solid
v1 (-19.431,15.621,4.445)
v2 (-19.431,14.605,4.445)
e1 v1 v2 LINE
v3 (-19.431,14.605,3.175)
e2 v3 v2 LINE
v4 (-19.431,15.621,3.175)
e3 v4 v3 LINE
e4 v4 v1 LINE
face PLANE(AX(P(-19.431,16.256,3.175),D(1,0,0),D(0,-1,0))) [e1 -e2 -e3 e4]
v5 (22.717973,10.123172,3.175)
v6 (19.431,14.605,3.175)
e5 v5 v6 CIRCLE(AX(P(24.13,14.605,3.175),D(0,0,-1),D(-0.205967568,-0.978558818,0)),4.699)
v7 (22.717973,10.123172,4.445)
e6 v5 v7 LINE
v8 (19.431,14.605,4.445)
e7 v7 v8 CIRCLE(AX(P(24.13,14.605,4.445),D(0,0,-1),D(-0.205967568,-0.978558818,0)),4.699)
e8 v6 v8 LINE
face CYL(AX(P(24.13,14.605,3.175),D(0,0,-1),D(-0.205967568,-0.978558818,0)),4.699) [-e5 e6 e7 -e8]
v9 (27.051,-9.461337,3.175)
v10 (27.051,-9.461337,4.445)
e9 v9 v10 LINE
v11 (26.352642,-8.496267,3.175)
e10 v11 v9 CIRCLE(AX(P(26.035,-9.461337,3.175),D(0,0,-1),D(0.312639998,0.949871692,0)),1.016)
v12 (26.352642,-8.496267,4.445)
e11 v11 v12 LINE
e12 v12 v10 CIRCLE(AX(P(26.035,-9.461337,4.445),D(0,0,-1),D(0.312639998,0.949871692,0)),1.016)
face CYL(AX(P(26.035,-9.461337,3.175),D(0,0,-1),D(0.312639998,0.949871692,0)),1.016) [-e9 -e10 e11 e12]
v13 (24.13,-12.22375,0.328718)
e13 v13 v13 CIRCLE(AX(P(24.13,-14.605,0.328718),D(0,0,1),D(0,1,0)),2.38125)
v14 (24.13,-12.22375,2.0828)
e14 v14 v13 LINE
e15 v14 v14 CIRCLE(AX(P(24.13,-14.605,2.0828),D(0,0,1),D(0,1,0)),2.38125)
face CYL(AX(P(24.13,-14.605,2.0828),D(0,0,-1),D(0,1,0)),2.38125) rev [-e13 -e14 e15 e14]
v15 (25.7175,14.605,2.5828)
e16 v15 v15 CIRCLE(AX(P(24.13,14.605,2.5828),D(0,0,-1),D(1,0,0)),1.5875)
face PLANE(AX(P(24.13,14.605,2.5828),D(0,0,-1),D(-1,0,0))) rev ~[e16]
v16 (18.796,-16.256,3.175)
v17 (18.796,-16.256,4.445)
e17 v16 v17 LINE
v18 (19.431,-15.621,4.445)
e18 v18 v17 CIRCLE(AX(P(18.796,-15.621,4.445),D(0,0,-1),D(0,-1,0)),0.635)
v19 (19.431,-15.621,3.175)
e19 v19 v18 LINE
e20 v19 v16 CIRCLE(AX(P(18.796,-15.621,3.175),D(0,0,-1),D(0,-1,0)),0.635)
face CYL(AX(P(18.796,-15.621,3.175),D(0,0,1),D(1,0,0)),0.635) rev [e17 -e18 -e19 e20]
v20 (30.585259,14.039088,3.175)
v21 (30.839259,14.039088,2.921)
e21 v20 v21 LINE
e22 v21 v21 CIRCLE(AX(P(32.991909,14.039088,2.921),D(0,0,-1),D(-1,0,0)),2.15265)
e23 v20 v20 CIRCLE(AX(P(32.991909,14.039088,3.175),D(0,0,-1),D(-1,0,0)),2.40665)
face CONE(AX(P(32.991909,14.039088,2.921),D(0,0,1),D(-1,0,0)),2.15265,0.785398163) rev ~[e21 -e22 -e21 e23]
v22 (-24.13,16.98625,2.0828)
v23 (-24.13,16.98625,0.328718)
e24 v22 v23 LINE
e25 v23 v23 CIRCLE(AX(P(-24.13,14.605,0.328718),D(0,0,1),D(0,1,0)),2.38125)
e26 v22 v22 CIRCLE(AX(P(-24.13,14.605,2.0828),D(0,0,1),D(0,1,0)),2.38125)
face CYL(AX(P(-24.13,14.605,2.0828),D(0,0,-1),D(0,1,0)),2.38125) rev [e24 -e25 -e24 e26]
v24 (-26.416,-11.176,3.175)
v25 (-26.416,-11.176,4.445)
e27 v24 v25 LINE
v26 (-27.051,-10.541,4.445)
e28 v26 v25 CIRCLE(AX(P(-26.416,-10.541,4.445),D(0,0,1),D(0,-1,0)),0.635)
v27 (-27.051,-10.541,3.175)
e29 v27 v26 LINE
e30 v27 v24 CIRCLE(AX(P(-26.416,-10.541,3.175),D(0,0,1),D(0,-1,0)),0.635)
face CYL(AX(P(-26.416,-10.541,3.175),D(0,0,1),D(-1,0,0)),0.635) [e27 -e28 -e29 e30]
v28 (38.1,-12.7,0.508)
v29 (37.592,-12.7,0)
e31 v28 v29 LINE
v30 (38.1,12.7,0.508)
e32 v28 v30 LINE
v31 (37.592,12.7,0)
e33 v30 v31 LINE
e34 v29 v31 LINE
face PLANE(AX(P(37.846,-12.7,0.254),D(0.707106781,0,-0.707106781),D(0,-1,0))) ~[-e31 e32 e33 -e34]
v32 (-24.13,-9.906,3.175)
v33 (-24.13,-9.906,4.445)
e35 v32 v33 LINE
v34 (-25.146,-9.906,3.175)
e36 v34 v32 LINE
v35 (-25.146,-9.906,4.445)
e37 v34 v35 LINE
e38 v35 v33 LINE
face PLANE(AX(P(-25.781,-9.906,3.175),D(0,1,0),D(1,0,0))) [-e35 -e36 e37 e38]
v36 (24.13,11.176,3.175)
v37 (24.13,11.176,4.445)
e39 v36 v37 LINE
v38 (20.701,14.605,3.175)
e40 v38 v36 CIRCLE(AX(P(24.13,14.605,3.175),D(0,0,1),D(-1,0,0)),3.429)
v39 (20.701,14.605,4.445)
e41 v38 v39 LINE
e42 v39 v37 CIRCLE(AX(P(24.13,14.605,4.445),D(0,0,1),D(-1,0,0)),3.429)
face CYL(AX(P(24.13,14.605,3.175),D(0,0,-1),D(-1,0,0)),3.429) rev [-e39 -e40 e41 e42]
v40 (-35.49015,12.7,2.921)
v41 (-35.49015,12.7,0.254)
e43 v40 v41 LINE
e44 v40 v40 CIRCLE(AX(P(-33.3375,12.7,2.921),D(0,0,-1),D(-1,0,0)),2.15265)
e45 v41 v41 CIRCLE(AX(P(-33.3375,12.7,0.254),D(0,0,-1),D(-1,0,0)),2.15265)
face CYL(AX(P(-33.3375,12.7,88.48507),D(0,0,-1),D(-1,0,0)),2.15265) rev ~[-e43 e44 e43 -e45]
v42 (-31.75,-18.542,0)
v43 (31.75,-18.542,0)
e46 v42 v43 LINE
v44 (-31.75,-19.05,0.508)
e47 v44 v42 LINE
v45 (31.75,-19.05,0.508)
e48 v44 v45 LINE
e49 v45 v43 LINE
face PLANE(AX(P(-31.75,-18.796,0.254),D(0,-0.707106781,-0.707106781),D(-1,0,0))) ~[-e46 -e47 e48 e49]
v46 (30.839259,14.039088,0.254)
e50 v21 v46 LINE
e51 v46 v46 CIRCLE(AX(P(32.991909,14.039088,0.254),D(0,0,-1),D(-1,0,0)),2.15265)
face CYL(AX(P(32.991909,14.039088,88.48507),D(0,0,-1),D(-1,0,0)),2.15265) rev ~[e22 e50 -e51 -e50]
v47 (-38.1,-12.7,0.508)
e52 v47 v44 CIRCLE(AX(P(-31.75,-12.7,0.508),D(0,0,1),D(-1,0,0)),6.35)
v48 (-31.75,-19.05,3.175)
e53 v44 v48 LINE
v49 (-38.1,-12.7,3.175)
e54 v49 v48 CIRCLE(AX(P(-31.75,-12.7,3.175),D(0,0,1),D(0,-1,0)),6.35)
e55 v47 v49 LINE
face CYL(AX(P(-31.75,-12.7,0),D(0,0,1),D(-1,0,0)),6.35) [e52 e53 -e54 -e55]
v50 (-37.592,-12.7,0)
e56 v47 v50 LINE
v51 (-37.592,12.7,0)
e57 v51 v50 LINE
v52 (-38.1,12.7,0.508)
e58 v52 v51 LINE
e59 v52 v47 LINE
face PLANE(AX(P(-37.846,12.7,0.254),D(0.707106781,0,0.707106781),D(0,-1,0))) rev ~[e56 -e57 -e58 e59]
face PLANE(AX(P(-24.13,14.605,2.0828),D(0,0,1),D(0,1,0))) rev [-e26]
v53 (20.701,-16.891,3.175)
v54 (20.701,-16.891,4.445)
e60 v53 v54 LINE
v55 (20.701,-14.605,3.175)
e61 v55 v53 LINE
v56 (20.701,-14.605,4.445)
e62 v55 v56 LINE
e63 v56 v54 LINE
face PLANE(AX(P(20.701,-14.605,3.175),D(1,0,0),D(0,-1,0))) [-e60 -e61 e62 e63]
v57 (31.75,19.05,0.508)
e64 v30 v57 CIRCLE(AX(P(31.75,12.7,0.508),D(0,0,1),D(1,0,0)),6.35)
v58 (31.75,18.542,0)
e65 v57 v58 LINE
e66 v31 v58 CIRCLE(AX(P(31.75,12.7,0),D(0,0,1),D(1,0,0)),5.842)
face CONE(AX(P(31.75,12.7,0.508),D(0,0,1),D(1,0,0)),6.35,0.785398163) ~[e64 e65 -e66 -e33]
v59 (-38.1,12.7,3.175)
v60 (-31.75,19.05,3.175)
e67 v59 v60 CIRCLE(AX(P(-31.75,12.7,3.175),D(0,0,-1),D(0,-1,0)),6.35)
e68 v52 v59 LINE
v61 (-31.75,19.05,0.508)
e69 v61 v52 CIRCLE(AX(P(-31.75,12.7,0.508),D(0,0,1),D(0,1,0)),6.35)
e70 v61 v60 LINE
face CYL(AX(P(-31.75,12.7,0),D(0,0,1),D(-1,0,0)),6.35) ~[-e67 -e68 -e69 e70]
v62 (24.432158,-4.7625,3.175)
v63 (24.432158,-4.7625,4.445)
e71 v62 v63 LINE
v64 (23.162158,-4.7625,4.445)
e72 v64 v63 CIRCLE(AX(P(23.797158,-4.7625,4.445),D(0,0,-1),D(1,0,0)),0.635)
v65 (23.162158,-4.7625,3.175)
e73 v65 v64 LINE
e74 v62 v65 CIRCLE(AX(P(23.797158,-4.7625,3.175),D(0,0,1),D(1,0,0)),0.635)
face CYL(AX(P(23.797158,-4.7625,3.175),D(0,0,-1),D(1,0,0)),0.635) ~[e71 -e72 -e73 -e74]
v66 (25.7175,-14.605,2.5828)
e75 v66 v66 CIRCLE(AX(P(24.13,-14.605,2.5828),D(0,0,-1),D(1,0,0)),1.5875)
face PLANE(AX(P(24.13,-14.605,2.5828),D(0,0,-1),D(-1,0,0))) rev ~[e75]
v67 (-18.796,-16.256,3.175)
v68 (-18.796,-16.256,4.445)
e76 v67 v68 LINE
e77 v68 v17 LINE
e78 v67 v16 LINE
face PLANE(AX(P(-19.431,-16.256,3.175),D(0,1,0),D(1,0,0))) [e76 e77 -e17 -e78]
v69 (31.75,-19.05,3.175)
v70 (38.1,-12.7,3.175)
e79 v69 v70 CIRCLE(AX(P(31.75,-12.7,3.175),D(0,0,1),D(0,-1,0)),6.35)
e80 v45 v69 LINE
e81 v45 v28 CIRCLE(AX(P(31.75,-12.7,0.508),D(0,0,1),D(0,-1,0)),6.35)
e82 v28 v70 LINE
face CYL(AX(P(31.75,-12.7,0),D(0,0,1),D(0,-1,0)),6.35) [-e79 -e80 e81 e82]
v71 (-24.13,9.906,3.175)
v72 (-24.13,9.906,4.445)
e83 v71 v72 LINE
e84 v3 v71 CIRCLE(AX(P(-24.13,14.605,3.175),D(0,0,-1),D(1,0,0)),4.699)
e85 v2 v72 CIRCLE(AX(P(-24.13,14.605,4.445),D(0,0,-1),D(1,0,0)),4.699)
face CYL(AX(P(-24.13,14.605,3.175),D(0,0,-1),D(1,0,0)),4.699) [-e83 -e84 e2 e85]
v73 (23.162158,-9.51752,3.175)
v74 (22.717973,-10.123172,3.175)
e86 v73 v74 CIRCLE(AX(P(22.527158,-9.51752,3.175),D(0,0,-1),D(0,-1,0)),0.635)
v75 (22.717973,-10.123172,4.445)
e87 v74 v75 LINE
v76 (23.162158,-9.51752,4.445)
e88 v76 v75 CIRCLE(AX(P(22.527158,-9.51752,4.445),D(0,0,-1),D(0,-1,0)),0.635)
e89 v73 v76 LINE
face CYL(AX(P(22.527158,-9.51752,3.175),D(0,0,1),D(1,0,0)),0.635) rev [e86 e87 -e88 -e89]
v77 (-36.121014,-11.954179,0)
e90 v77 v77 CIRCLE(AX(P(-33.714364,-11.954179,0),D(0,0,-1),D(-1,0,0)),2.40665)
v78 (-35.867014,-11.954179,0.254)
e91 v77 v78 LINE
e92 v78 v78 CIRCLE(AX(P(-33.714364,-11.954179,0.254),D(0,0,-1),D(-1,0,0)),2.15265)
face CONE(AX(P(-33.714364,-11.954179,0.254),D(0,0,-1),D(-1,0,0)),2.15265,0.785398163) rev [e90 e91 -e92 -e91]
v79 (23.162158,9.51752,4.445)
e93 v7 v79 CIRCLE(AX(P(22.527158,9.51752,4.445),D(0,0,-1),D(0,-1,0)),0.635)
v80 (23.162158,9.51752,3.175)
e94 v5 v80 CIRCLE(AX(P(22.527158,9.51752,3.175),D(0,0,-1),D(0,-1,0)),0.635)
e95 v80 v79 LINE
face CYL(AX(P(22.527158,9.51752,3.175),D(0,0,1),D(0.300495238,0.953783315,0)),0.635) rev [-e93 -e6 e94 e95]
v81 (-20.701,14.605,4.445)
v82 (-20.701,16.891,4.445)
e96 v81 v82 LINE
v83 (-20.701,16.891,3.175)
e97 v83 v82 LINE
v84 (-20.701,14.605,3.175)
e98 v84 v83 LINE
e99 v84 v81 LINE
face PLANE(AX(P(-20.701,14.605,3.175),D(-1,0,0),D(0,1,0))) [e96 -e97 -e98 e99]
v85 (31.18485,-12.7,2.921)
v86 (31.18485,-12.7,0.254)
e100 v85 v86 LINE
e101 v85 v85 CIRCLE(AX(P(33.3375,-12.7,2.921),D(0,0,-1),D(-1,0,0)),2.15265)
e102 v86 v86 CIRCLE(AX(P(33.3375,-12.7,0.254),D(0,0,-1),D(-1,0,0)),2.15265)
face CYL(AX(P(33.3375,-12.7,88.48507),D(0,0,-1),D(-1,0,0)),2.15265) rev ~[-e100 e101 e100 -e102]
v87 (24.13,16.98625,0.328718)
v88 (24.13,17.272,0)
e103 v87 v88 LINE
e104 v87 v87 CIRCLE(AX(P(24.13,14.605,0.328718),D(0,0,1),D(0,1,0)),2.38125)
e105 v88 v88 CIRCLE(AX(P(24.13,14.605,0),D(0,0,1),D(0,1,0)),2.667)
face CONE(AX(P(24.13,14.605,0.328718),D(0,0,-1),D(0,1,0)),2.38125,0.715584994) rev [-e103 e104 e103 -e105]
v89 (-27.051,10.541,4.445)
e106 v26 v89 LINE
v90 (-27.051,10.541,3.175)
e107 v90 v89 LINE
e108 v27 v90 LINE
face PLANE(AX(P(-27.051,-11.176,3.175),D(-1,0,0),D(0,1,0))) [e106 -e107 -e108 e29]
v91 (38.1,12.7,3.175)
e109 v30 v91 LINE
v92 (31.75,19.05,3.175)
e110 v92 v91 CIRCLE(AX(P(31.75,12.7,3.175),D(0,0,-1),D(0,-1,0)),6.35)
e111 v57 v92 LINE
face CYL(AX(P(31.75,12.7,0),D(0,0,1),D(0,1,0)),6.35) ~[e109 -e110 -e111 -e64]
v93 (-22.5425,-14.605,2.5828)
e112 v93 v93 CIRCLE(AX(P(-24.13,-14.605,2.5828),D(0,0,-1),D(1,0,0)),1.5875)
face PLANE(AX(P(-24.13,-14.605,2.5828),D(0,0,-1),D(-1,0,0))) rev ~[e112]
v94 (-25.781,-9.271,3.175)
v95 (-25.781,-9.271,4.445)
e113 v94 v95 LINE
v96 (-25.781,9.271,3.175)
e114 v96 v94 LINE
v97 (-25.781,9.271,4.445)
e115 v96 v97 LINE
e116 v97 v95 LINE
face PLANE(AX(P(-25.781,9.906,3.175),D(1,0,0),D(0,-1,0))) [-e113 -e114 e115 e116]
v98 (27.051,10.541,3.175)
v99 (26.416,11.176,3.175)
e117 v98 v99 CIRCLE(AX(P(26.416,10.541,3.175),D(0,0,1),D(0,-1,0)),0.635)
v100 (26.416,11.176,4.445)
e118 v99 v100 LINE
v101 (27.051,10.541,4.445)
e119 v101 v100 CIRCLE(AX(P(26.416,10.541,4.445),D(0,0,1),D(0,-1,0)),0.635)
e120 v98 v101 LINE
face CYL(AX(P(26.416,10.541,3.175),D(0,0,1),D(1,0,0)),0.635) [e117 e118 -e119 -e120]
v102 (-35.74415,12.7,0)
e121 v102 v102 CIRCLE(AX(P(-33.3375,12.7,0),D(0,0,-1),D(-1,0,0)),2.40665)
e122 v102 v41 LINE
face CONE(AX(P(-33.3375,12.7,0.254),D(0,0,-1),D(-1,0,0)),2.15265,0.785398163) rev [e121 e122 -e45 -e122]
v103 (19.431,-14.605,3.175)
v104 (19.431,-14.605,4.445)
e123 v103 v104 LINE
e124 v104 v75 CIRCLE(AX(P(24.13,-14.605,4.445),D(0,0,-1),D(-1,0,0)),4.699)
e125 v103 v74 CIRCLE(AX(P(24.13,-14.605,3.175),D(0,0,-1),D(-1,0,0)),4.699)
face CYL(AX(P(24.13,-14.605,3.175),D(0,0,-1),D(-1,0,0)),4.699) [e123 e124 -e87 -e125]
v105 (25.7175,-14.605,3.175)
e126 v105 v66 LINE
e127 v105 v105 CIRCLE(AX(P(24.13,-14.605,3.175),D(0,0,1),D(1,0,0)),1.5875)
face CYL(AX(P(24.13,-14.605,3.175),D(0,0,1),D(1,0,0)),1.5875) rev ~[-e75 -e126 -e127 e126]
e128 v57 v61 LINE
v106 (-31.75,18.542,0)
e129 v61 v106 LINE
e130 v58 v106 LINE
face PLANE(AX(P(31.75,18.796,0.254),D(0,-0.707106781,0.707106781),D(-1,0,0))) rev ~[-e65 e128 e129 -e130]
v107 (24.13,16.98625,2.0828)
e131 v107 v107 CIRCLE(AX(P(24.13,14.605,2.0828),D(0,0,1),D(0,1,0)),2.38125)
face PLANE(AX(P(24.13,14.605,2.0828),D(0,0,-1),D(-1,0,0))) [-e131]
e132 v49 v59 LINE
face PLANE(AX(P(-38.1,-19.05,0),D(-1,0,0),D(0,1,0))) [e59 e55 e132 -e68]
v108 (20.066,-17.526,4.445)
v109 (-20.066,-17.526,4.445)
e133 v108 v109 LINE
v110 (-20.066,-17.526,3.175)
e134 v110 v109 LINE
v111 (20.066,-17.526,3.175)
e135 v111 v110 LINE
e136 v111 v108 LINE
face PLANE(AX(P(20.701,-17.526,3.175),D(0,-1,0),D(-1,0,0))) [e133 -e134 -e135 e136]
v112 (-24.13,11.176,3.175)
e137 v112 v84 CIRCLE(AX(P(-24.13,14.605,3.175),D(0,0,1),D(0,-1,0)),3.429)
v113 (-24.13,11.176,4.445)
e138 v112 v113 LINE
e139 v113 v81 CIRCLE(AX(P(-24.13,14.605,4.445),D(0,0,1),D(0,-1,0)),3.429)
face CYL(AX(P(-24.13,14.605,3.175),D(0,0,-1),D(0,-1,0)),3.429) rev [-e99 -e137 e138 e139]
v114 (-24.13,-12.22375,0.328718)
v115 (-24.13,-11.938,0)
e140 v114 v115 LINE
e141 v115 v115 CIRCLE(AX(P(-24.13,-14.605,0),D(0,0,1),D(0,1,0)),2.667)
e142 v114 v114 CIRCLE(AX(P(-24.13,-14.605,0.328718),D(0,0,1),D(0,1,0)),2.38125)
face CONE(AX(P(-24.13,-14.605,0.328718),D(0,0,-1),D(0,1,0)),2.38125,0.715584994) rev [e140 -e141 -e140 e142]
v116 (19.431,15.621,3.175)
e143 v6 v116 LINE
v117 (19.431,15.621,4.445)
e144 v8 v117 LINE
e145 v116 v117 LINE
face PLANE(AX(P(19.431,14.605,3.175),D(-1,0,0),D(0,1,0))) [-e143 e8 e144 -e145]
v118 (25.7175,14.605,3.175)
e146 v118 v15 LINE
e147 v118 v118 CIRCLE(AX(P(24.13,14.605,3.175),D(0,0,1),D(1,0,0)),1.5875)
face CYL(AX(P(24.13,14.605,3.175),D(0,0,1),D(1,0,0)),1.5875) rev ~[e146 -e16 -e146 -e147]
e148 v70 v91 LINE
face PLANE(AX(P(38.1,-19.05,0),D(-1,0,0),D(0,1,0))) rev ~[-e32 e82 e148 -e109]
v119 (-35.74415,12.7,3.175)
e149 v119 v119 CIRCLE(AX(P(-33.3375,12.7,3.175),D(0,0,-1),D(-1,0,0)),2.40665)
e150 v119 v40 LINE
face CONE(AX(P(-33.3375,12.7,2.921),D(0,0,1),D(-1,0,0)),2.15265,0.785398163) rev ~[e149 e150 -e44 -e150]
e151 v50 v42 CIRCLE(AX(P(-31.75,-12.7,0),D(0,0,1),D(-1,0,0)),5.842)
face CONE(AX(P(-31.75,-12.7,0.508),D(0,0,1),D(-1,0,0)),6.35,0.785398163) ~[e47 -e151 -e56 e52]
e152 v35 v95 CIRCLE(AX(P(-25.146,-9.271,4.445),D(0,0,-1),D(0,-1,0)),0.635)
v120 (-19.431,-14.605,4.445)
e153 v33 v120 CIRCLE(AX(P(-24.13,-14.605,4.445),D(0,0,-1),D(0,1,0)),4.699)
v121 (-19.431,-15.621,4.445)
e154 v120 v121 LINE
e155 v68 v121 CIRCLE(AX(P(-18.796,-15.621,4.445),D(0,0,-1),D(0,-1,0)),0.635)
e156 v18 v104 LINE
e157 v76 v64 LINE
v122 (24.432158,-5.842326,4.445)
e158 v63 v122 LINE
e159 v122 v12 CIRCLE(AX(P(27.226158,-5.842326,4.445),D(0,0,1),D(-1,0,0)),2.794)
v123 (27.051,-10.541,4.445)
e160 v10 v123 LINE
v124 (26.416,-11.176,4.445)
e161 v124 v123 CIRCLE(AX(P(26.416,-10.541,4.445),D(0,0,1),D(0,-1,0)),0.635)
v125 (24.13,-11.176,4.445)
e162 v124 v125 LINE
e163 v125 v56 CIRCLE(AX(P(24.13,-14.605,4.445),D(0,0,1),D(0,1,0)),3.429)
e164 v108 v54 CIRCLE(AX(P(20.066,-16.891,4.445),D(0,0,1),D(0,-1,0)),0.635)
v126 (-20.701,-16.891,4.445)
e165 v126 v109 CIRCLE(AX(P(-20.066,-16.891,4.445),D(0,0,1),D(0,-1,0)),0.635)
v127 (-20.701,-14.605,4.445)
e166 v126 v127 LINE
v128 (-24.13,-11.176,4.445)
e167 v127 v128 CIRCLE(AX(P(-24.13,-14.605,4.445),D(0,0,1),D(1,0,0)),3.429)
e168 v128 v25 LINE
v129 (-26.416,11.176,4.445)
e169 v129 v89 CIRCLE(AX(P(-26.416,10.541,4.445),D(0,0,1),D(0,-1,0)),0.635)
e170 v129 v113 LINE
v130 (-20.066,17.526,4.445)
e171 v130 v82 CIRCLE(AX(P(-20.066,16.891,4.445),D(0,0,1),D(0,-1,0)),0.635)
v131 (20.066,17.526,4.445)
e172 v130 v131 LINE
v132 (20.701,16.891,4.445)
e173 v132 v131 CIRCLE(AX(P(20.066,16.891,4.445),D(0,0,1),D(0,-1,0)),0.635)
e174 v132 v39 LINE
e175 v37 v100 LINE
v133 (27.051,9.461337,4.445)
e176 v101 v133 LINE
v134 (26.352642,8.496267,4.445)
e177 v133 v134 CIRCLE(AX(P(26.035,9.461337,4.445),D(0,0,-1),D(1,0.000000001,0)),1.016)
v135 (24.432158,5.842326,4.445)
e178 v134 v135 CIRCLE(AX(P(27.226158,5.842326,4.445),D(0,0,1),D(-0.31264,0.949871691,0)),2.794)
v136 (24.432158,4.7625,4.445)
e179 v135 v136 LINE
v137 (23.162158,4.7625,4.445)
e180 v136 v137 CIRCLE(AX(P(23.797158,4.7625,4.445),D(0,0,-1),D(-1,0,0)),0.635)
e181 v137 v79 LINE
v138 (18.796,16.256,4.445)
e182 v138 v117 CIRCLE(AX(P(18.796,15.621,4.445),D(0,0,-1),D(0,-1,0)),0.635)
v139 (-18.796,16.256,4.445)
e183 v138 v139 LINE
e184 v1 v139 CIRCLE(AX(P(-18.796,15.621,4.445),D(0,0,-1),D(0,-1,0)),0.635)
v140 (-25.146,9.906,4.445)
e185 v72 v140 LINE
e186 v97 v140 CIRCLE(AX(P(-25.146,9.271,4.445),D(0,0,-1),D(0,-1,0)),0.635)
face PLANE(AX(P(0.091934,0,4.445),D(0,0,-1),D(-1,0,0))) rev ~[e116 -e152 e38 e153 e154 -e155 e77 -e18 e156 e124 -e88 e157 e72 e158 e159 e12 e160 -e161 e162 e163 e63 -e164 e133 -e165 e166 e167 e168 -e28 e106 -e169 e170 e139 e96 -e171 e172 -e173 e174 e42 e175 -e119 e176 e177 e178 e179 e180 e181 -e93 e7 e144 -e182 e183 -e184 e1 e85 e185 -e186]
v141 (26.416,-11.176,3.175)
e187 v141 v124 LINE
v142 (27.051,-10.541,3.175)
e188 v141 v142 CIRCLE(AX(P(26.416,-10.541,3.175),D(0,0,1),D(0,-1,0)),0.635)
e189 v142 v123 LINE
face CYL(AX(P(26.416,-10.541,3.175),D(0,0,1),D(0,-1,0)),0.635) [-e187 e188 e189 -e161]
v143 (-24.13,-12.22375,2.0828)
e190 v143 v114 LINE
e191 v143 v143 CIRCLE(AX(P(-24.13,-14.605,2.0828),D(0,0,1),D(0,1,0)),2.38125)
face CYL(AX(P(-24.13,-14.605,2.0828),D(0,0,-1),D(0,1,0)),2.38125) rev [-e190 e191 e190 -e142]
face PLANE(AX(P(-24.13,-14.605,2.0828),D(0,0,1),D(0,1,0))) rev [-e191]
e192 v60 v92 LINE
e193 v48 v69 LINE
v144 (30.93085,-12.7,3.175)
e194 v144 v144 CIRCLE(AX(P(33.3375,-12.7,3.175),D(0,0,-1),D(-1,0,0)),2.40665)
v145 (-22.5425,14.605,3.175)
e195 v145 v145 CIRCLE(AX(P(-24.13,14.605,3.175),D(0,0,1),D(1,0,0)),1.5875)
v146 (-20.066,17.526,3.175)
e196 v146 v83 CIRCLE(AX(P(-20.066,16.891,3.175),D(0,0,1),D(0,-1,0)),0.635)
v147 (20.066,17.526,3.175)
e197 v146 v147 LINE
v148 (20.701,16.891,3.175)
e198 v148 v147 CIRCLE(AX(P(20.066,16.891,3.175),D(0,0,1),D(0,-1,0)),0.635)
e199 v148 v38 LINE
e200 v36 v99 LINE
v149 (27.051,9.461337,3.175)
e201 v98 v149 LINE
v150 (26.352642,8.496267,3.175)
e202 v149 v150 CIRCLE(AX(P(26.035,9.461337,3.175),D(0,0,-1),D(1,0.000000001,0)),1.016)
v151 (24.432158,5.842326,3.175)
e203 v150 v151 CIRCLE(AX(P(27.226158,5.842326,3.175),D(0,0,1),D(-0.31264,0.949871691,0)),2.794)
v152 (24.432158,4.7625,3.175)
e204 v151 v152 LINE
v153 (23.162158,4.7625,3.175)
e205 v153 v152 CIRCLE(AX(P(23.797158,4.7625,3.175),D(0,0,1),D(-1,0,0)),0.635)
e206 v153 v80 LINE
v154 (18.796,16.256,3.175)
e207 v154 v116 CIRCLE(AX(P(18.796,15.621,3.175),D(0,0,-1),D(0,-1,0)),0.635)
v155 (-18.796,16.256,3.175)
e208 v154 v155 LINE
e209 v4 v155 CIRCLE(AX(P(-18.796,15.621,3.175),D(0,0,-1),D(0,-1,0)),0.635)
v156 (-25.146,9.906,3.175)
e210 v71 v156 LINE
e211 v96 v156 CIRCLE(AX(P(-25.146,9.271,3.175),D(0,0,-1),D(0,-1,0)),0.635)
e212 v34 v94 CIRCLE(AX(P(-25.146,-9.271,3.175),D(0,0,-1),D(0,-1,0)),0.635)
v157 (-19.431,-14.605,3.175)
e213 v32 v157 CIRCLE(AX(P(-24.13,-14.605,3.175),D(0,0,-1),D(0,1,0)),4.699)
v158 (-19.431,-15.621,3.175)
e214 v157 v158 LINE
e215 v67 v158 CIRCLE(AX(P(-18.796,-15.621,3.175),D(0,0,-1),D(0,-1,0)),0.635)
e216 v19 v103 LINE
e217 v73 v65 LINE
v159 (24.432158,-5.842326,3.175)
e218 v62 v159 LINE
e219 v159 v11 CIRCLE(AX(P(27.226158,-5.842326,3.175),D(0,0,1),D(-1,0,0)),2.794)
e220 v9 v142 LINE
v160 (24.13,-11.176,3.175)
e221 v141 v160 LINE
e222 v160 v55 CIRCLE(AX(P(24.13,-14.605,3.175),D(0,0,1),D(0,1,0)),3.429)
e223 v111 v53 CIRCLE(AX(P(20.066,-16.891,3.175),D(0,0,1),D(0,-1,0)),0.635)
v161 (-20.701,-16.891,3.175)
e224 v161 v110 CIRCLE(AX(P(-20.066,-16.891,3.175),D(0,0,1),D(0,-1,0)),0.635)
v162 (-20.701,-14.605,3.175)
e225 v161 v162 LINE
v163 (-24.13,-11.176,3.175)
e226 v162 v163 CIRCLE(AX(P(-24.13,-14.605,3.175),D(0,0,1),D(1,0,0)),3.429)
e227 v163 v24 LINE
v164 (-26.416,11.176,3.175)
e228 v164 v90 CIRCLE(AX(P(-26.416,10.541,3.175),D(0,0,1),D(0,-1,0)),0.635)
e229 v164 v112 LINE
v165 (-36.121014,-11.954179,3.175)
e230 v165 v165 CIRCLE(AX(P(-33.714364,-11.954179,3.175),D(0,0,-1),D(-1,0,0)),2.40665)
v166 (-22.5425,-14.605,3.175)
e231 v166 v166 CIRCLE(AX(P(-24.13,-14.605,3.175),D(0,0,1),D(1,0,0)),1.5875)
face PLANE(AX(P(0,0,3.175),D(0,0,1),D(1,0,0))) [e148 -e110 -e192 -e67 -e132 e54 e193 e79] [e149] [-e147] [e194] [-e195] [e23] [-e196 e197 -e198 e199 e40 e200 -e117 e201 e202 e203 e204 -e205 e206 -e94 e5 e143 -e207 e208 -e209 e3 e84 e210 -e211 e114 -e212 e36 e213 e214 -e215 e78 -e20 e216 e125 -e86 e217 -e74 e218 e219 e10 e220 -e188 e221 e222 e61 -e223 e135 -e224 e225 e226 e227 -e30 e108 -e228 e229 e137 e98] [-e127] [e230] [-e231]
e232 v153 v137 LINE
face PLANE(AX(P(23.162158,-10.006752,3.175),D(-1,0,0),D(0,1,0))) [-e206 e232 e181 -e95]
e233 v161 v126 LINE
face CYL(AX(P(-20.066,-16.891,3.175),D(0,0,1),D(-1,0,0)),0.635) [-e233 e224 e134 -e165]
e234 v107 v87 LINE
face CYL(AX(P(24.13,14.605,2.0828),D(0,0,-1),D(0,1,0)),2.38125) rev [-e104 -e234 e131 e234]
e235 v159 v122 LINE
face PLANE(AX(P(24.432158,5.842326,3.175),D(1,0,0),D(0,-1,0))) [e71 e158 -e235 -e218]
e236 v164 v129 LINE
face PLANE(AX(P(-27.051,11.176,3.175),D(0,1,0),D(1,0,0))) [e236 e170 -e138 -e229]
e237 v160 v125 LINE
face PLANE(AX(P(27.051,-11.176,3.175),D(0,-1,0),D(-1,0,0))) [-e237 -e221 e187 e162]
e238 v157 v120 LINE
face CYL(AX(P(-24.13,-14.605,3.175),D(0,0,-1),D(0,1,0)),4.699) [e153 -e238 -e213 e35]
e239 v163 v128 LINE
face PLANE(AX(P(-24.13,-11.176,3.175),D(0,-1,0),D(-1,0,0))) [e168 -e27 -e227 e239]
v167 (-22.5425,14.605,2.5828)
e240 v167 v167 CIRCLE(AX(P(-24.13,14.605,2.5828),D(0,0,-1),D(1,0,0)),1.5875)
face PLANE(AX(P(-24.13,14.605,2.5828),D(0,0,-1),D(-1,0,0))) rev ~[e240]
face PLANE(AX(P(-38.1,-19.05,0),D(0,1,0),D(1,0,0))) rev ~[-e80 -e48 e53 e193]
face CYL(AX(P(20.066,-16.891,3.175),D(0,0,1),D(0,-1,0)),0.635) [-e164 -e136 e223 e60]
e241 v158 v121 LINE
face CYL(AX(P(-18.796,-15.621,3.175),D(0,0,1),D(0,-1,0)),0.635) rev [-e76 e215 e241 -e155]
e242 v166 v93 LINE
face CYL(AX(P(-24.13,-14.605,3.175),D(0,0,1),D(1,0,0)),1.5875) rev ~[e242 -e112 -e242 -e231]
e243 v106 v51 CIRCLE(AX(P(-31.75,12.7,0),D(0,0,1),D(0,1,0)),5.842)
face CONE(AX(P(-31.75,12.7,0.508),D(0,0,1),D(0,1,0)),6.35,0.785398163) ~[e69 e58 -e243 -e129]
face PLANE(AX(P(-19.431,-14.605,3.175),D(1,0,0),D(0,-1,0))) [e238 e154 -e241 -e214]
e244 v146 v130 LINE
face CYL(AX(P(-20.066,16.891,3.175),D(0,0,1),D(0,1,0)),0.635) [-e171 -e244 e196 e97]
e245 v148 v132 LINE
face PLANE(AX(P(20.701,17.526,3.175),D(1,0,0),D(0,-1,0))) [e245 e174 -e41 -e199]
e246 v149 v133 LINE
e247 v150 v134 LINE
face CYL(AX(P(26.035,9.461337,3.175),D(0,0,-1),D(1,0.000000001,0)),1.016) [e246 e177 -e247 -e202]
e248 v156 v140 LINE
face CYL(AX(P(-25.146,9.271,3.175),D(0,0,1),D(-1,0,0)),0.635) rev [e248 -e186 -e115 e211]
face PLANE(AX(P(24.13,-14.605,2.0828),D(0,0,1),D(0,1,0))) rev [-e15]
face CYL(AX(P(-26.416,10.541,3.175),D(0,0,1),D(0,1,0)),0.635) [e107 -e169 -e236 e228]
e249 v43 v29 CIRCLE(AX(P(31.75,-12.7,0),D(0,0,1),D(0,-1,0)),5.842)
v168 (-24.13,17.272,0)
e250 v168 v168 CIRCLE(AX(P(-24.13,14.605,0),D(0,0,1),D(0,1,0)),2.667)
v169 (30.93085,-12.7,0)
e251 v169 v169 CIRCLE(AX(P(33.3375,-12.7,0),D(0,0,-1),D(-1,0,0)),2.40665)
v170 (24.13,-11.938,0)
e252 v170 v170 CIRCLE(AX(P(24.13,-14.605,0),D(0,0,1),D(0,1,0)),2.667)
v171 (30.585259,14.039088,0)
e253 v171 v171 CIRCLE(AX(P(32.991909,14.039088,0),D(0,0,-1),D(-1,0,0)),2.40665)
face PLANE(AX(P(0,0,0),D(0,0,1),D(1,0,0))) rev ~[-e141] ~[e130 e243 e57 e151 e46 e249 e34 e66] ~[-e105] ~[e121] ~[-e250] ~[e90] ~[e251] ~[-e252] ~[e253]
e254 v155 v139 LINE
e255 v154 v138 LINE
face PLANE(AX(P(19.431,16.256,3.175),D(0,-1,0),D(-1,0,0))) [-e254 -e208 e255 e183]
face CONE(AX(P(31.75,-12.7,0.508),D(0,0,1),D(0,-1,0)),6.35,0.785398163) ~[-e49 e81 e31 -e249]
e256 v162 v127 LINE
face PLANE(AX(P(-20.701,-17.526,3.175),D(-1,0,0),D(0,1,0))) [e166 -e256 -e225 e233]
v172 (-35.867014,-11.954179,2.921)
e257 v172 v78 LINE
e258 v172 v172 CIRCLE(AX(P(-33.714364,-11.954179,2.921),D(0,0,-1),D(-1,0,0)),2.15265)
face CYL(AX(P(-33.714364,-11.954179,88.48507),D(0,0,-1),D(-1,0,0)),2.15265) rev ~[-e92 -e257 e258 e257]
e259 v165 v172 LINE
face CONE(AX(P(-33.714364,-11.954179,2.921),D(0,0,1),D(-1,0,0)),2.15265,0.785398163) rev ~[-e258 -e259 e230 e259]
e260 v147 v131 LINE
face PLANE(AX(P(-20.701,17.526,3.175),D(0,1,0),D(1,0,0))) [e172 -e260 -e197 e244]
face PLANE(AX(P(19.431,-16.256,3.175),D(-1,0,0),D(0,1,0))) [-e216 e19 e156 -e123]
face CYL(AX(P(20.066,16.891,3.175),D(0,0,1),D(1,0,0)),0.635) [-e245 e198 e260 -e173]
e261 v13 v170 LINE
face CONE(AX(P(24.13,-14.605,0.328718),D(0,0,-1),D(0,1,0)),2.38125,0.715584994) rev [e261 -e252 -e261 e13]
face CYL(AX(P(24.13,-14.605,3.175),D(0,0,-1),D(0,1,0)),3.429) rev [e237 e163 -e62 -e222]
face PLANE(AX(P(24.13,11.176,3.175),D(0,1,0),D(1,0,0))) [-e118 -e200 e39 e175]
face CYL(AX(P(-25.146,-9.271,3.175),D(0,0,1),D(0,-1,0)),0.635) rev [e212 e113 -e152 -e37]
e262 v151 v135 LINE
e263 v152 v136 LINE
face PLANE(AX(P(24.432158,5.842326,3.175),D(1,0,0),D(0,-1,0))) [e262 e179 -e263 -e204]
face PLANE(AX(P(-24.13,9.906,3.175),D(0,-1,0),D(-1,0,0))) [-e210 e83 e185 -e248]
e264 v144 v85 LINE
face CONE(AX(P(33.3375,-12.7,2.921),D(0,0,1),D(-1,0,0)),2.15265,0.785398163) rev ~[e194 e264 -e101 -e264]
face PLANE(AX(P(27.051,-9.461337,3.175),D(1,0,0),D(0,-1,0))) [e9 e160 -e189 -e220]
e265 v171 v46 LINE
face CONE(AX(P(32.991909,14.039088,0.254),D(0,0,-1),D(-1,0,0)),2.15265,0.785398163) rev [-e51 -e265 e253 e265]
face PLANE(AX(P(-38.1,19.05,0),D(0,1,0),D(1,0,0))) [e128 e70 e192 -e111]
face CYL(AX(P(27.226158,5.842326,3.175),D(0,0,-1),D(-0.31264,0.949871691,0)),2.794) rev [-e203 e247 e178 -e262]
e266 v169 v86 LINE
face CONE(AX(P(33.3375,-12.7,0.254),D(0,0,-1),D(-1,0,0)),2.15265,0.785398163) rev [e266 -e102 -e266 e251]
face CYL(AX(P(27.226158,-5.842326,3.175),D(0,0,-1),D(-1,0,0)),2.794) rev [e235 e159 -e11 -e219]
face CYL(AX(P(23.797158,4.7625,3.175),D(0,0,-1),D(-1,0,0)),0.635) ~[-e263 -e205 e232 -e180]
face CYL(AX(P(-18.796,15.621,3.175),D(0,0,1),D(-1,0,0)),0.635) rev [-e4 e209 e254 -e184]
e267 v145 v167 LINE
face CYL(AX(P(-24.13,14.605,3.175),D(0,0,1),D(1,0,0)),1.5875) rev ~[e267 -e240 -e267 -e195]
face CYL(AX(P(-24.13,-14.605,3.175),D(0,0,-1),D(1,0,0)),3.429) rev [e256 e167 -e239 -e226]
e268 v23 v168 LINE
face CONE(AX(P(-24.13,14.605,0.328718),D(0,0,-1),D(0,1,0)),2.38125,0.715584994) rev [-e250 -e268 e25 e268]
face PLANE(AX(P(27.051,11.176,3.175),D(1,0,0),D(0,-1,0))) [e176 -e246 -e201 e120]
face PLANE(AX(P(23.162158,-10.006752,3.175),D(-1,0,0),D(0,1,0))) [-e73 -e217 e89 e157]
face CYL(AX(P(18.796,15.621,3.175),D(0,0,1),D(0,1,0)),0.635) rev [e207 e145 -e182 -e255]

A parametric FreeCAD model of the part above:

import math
import FreeCAD as App
import Part
import Sketcher

V = App.Vector
Q = App.Units.Quantity


def edges_at(feature, points):
    """Names of the edges that pass closest to the given points."""
    edges = feature.Shape.Edges
    near = lambda p: min(range(len(edges)), key=lambda i: edges[i].distToShape(Part.Vertex(*p))[0])
    return sorted({f"Edge{near(p) + 1}" for p in points})

doc = App.newDocument("Part")
body = doc.addObject("PartDesign::Body", "Body")

# Sketch on XY plane
sketch1 = body.newObject("Sketcher::SketchObject", "Sketch")
sketch1.AttachmentSupport = (doc.getObject("XY_Plane"), [""])
sketch1.MapMode = "FlatFace"
sketch1.addGeometry([
    Part.LineSegment(V(-38, 19, 0), V(-38, -19, 0)),
    Part.LineSegment(V(-38, -19, 0), V(38, -19, 0)),
    Part.LineSegment(V(38, -19, 0), V(38, 19, 0)),
    Part.LineSegment(V(38, 19, 0), V(-38, 19, 0)),
], False)
sketch1.addConstraint([
    Sketcher.Constraint("Coincident", 0, 2, 1, 1),
    Sketcher.Constraint("Coincident", 1, 2, 2, 1),
    Sketcher.Constraint("Coincident", 2, 2, 3, 1),
    Sketcher.Constraint("Coincident", 3, 2, 0, 1),
    Sketcher.Constraint("Vertical", 0),
    Sketcher.Constraint("Horizontal", 1),
    Sketcher.Constraint("Vertical", 2),
    Sketcher.Constraint("Horizontal", 3),
    Sketcher.Constraint("Symmetric", 0, 2, 2, 2, -1, 1),
    Sketcher.Constraint("DistanceX", 1, 1, 1, 2, Q("3 in")),
    Sketcher.Constraint("DistanceY", 0, 2, 0, 1, Q("1.5 in")),
])
pad1 = body.newObject("PartDesign::Pad", "Pad")
pad1.Profile = sketch1
pad1.Length = Q("0.125 in")

# Sketch on XY plane
sketch2 = body.newObject("Sketcher::SketchObject", "Sketch001")
sketch2.AttachmentSupport = (doc.getObject("XY_Plane"), [""])
sketch2.MapMode = "FlatFace"
sketch2.AttachmentOffset = App.Placement(V(0, 0, 0.125 * 25.4), App.Rotation())
sketch2.addGeometry([
    Part.Circle(V(24.1, -14.6, 0), V(0, 0, 1), 1.6),
    Part.Circle(V(24.1, 14.6, 0), V(0, 0, 1), 1.6),
    Part.Circle(V(-24.1, 14.6, 0), V(0, 0, 1), 1.6),
    Part.Circle(V(-24.1, -14.6, 0), V(0, 0, 1), 1.6),
], False)
sketch2.addConstraint([
    Sketcher.Constraint("Equal", 0, 1),
    Sketcher.Constraint("Equal", 1, 2),
    Sketcher.Constraint("Equal", 2, 3),
    Sketcher.Constraint("Symmetric", 0, 3, 2, 3, -1, 1),
    Sketcher.Constraint("Symmetric", 1, 3, 3, 3, -1, 1),
    Sketcher.Constraint("Symmetric", 1, 3, 2, 3, -2),
    Sketcher.Constraint("Diameter", 0, Q("0.125 in")),
    Sketcher.Constraint("DistanceX", 2, 3, 1, 3, Q("1.9 in")),
    Sketcher.Constraint("DistanceY", 0, 3, 1, 3, Q("1.15 in")),
])
pocket1 = body.newObject("PartDesign::Pocket", "Pocket")
pocket1.Profile = sketch2
pocket1.Type = "ThroughAll"

# Sketch on YZ plane
sketch3 = body.newObject("Sketcher::SketchObject", "Sketch002")
sketch3.AttachmentSupport = (doc.getObject("YZ_Plane"), [""])
sketch3.MapMode = "FlatFace"
sketch3.AttachmentOffset = App.Placement(V(0, 0, 0.95 * 25.4), App.Rotation())
sketch3.addGeometry([
    Part.LineSegment(V(14.61, 3.17, 0), V(14.61, 0, 0)),  # 0
    Part.LineSegment(V(14.61, 0, 0), V(17.27, 0, 0)),  # 1
    Part.LineSegment(V(17.27, 0, 0), V(16.99, 0.33, 0)),  # 2
    Part.LineSegment(V(16.99, 0.33, 0), V(16.99, 2.08, 0)),  # 3
    Part.LineSegment(V(16.99, 2.08, 0), V(15.96, 2.08, 0)),  # 4
    Part.LineSegment(V(15.96, 2.08, 0), V(15.96, 3.17, 0)),  # 5
    Part.LineSegment(V(15.96, 3.17, 0), V(14.61, 3.17, 0)),  # 6
], False)
sketch3.addGeometry(Part.LineSegment(V(14.61, 0, 0), V(14.61, 3.17, 0)), True)  # axis
sketch3.addConstraint([
    Sketcher.Constraint("Coincident", 0, 2, 1, 1),
    Sketcher.Constraint("Coincident", 1, 2, 2, 1),
    Sketcher.Constraint("Coincident", 2, 2, 3, 1),
    Sketcher.Constraint("Coincident", 3, 2, 4, 1),
    Sketcher.Constraint("Coincident", 4, 2, 5, 1),
    Sketcher.Constraint("Coincident", 5, 2, 6, 1),
    Sketcher.Constraint("Coincident", 6, 2, 0, 1),
    Sketcher.Constraint("Vertical", 0),
    Sketcher.Constraint("Horizontal", 1),
    Sketcher.Constraint("Vertical", 3),
    Sketcher.Constraint("Horizontal", 4),
    Sketcher.Constraint("Vertical", 5),
    Sketcher.Constraint("Horizontal", 6),
    Sketcher.Constraint("Vertical", 7),
    Sketcher.Constraint("Coincident", 7, 1, 0, 2),
    Sketcher.Constraint("PointOnObject", 0, 2, -1),
    Sketcher.Constraint("Horizontal", 5, 2, 7, 2),
    Sketcher.Constraint("Angle", 2, Q("131 deg")),
    Sketcher.Constraint("DistanceX", 1, 1, 1, 2, Q("0.105 in")),
    Sketcher.Constraint("DistanceY", 0, 2, 0, 1, Q("0.125 in")),
    Sketcher.Constraint("DistanceY", 5, 1, 5, 2, Q("0.043 in")),
    Sketcher.Constraint("DistanceX", -1, 1, 1, 2, Q("0.68 in")),
    Sketcher.Constraint("DistanceX", 4, 2, 4, 1, Q("0.0405 in")),
    Sketcher.Constraint("DistanceX", 0, 2, 2, 2, Q("0.09375 in")),
])
groove = body.newObject("PartDesign::Groove", "Groove")
groove.Profile = sketch3
groove.ReferenceAxis = (sketch3, ["Axis0"])
groove.Angle = 360
doc.recompute()

linearpattern = body.newObject("PartDesign::LinearPattern", "LinearPattern")
linearpattern.Originals = [groove]
linearpattern.Direction = (doc.getObject("Y_Axis"), [""])
linearpattern.Mode = "offset"
linearpattern.Offset = Q("1.15 in")
linearpattern.Occurrences = 2
linearpattern.Reversed = True
body.Tip = linearpattern
doc.recompute()

datumline = body.newObject("PartDesign::Line", "DatumLine")
datumline.Placement = App.Placement(V(0, 0, 0), App.Rotation(V(0, 0, 1), V(-0.855500079, -0.517802679, 0)))
linearpattern2 = body.newObject("PartDesign::LinearPattern", "LinearPattern001")
linearpattern2.Originals = [groove]
linearpattern2.Direction = (datumline, [""])
linearpattern2.Mode = "offset"
linearpattern2.Offset = 56.41145
linearpattern2.Occurrences = 2
body.Tip = linearpattern2
doc.recompute()

linearpattern3 = body.newObject("PartDesign::LinearPattern", "LinearPattern002")
linearpattern3.Originals = [groove]
linearpattern3.Direction = (doc.getObject("X_Axis"), [""])
linearpattern3.Mode = "offset"
linearpattern3.Offset = Q("1.9 in")
linearpattern3.Occurrences = 2
linearpattern3.Reversed = True
body.Tip = linearpattern3

# Sketch on XY plane
sketch4 = body.newObject("Sketcher::SketchObject", "Sketch003")
sketch4.AttachmentSupport = (doc.getObject("XY_Plane"), [""])
sketch4.MapMode = "FlatFace"
sketch4.AttachmentOffset = App.Placement(V(0, 0, 0.125 * 25.4), App.Rotation())
sketch4.addGeometry([
    Part.ArcOfCircle(Part.Circle(V(-24.1, 14.6, 0), V(0, 0, 1), 3.4), math.radians(-90), math.radians(0)),  # 0
    Part.LineSegment(V(-24.1, 11.2, 0), V(-27.1, 11.2, 0)),  # 1
    Part.LineSegment(V(-27.1, 11.2, 0), V(-27.1, -11.2, 0)),  # 2
    Part.LineSegment(V(-27.1, -11.2, 0), V(-24.1, -11.2, 0)),  # 3
    Part.ArcOfCircle(Part.Circle(V(-24.1, -14.6, 0), V(0, 0, 1), 3.4), math.radians(0), math.radians(90)),  # 4
    Part.LineSegment(V(-20.7, -14.6, 0), V(-20.7, -17.5, 0)),  # 5
    Part.LineSegment(V(-20.7, -17.5, 0), V(20.7, -17.5, 0)),  # 6
    Part.LineSegment(V(20.7, -17.5, 0), V(20.7, -14.6, 0)),  # 7
    Part.ArcOfCircle(Part.Circle(V(24.1, -14.6, 0), V(0, 0, 1), 3.4), math.radians(90), math.radians(180)),  # 8
    Part.LineSegment(V(24.1, -11.2, 0), V(27.1, -11.2, 0)),  # 9
    Part.LineSegment(V(27.1, -11.2, 0), V(27.1, -9.5, 0)),  # 10
    Part.ArcOfCircle(Part.Circle(V(26, -9.5, 0), V(0, 0, 1), 1), math.radians(0), math.radians(72)),  # 11
    Part.ArcOfCircle(Part.Circle(V(27.2, -5.8, 0), V(0, 0, 1), 2.8), math.radians(180), math.radians(252)),  # 12
    Part.LineSegment(V(24.4, -5.8, 0), V(24.4, 5.8, 0)),  # 13
    Part.ArcOfCircle(Part.Circle(V(27.2, 5.8, 0), V(0, 0, 1), 2.8), math.radians(108), math.radians(180)),  # 14
    Part.ArcOfCircle(Part.Circle(V(26, 9.5, 0), V(0, 0, 1), 1), math.radians(-72), math.radians(0)),  # 15
    Part.LineSegment(V(27.1, 9.5, 0), V(27.1, 11.2, 0)),  # 16
    Part.LineSegment(V(27.1, 11.2, 0), V(24.1, 11.2, 0)),  # 17
    Part.ArcOfCircle(Part.Circle(V(24.1, 14.6, 0), V(0, 0, 1), 3.4), math.radians(180), math.radians(270)),  # 18
    Part.LineSegment(V(20.7, 14.6, 0), V(20.7, 17.5, 0)),  # 19
    Part.LineSegment(V(20.7, 17.5, 0), V(-20.7, 17.5, 0)),  # 20
    Part.LineSegment(V(-20.7, 17.5, 0), V(-20.7, 14.6, 0)),  # 21
    Part.LineSegment(V(19.4, -14.6, 0), V(19.4, -16.3, 0)),  # 22
    Part.LineSegment(V(19.4, -16.3, 0), V(-19.4, -16.3, 0)),  # 23
    Part.LineSegment(V(-19.4, -16.3, 0), V(-19.4, -14.6, 0)),  # 24
    Part.ArcOfCircle(Part.Circle(V(-24.1, -14.6, 0), V(0, 0, 1), 4.7), math.radians(0), math.radians(90)),  # 25
    Part.LineSegment(V(-24.1, -9.9, 0), V(-25.8, -9.9, 0)),  # 26
    Part.LineSegment(V(-25.8, -9.9, 0), V(-25.8, 9.9, 0)),  # 27
    Part.LineSegment(V(-25.8, 9.9, 0), V(-24.1, 9.9, 0)),  # 28
    Part.ArcOfCircle(Part.Circle(V(-24.1, 14.6, 0), V(0, 0, 1), 4.7), math.radians(-90), math.radians(0)),  # 29
    Part.LineSegment(V(-19.4, 14.6, 0), V(-19.4, 16.3, 0)),  # 30
    Part.LineSegment(V(-19.4, 16.3, 0), V(19.4, 16.3, 0)),  # 31
    Part.LineSegment(V(19.4, 16.3, 0), V(19.4, 14.6, 0)),  # 32
    Part.ArcOfCircle(Part.Circle(V(24.1, 14.6, 0), V(0, 0, 1), 4.7), math.radians(-180), math.radians(-102)),  # 33
    Part.LineSegment(V(23.2, 10, 0), V(23.2, -10, 0)),  # 34
    Part.ArcOfCircle(Part.Circle(V(24.1, -14.6, 0), V(0, 0, 1), 4.7), math.radians(102), math.radians(180)),  # 35
], False)
sketch4.addConstraint([
    Sketcher.Constraint("Tangent", 0, 1, 1, 1),
    Sketcher.Constraint("Coincident", 1, 2, 2, 1),
    Sketcher.Constraint("Coincident", 2, 2, 3, 1),
    Sketcher.Constraint("Tangent", 3, 2, 4, 2),
    Sketcher.Constraint("Tangent", 4, 1, 5, 1),
    Sketcher.Constraint("Coincident", 5, 2, 6, 1),
    Sketcher.Constraint("Coincident", 6, 2, 7, 1),
    Sketcher.Constraint("Tangent", 7, 2, 8, 2),
    Sketcher.Constraint("Tangent", 8, 1, 9, 1),
    Sketcher.Constraint("Coincident", 9, 2, 10, 1),
    Sketcher.Constraint("Tangent", 10, 2, 11, 1),
    Sketcher.Constraint("Tangent", 11, 2, 12, 2),
    Sketcher.Constraint("Tangent", 12, 1, 13, 1),
    Sketcher.Constraint("Tangent", 13, 2, 14, 2),
    Sketcher.Constraint("Tangent", 14, 1, 15, 1),
    Sketcher.Constraint("Tangent", 15, 2, 16, 1),
    Sketcher.Constraint("Coincident", 16, 2, 17, 1),
    Sketcher.Constraint("Tangent", 17, 2, 18, 2),
    Sketcher.Constraint("Tangent", 18, 1, 19, 1),
    Sketcher.Constraint("Coincident", 19, 2, 20, 1),
    Sketcher.Constraint("Coincident", 20, 2, 21, 1),
    Sketcher.Constraint("Tangent", 21, 2, 0, 2),
    Sketcher.Constraint("Coincident", 22, 2, 23, 1),
    Sketcher.Constraint("Coincident", 23, 2, 24, 1),
    Sketcher.Constraint("Tangent", 24, 2, 25, 1),
    Sketcher.Constraint("Tangent", 25, 2, 26, 1),
    Sketcher.Constraint("Coincident", 26, 2, 27, 1),
    Sketcher.Constraint("Coincident", 27, 2, 28, 1),
    Sketcher.Constraint("Tangent", 28, 2, 29, 1),
    Sketcher.Constraint("Tangent", 29, 2, 30, 1),
    Sketcher.Constraint("Coincident", 30, 2, 31, 1),
    Sketcher.Constraint("Coincident", 31, 2, 32, 1),
    Sketcher.Constraint("Tangent", 32, 2, 33, 1),
    Sketcher.Constraint("Coincident", 33, 2, 34, 1),
    Sketcher.Constraint("Coincident", 34, 2, 35, 1),
    Sketcher.Constraint("Tangent", 35, 2, 22, 1),
    Sketcher.Constraint("Horizontal", 1),
    Sketcher.Constraint("Vertical", 2),
    Sketcher.Constraint("Horizontal", 3),
    Sketcher.Constraint("Vertical", 5),
    Sketcher.Constraint("Horizontal", 6),
    Sketcher.Constraint("Vertical", 7),
    Sketcher.Constraint("Horizontal", 9),
    Sketcher.Constraint("Vertical", 10),
    Sketcher.Constraint("Vertical", 13),
    Sketcher.Constraint("Vertical", 16),
    Sketcher.Constraint("Horizontal", 17),
    Sketcher.Constraint("Vertical", 19),
    Sketcher.Constraint("Horizontal", 20),
    Sketcher.Constraint("Vertical", 21),
    Sketcher.Constraint("Vertical", 22),
    Sketcher.Constraint("Horizontal", 23),
    Sketcher.Constraint("Vertical", 24),
    Sketcher.Constraint("Horizontal", 26),
    Sketcher.Constraint("Vertical", 27),
    Sketcher.Constraint("Horizontal", 28),
    Sketcher.Constraint("Vertical", 30),
    Sketcher.Constraint("Horizontal", 31),
    Sketcher.Constraint("Vertical", 32),
    Sketcher.Constraint("Vertical", 34),
    Sketcher.Constraint("Coincident", 25, 3, 4, 3),
    Sketcher.Constraint("Coincident", 29, 3, 0, 3),
    Sketcher.Constraint("Coincident", 33, 3, 18, 3),
    Sketcher.Constraint("Coincident", 35, 3, 8, 3),
    Sketcher.Constraint("Equal", 0, 4),
    Sketcher.Constraint("Equal", 4, 8),
    Sketcher.Constraint("Equal", 12, 14),
    Sketcher.Constraint("Equal", 11, 15),
    Sketcher.Constraint("Equal", 8, 18),
    Sketcher.Constraint("Equal", 25, 29),
    Sketcher.Constraint("Equal", 29, 33),
    Sketcher.Constraint("Equal", 33, 35),
    Sketcher.Constraint("Symmetric", 0, 3, 8, 3, -1, 1),
    Sketcher.Constraint("Symmetric", 4, 3, 18, 3, -1, 1),
    Sketcher.Constraint("Symmetric", 4, 3, 8, 3, -2),
    Sketcher.Constraint("Symmetric", 11, 3, 15, 3, -1),
    Sketcher.Constraint("Equal", 3, 9),
    Sketcher.Constraint("Equal", 17, 5),
    Sketcher.Constraint("Equal", 7, 19),
    Sketcher.Constraint("Equal", 28, 22),
    Sketcher.Constraint("Equal", 24, 30),
    Sketcher.Constraint("Radius", 11, Q("0.04 in")),
    Sketcher.Constraint("Radius", 12, Q("0.11 in")),
    Sketcher.Constraint("Radius", 0, Q("0.135 in")),
    Sketcher.Constraint("Radius", 25, Q("0.185 in")),
    Sketcher.Constraint("DistanceX", 6, 1, 6, 2, Q("1.63 in")),
    Sketcher.Constraint("DistanceY", 2, 2, 2, 1, Q("0.88 in")),
    Sketcher.Constraint("DistanceY", 22, 2, 8, 1, Q("0.2 in")),
    Sketcher.Constraint("DistanceX", 1, 2, 1, 1, Q("0.115 in")),
    Sketcher.Constraint("DistanceY", 13, 1, 13, 2, Q("11.684652 mm")),
    Sketcher.Constraint("DistanceY", 10, 1, 10, 2, Q("1.714663 mm")),
    Sketcher.Constraint("DistanceY", 34, 2, 34, 1, Q("20.013504 mm")),
])
pad2 = body.newObject("PartDesign::Pad", "Pad001")
pad2.Profile = sketch4
pad2.Length = Q("0.05 in")
doc.recompute()

fillet = body.newObject("PartDesign::Fillet", "Fillet")
fillet.Base = (pad2, edges_at(pad2, [
    (-38.1, 19.05, 1.587),
    (38.1, 19.05, 1.587),
    (38.1, -19.05, 1.587),
    (-38.1, -19.05, 1.587),
]))
fillet.Radius = Q("0.25 in")
doc.recompute()

fillet2 = body.newObject("PartDesign::Fillet", "Fillet001")
fillet2.Base = (fillet, edges_at(fillet, [
    (-27.051, 11.176, 3.81),
    (-27.051, -11.176, 3.81),
    (-20.701, -17.526, 3.81),
    (20.701, -17.526, 3.81),
    (27.051, -11.176, 3.81),
    (27.051, 11.176, 3.81),
    (20.701, 17.526, 3.81),
    (-20.701, 17.526, 3.81),
]))
fillet2.Radius = Q("0.025 in")
doc.recompute()

fillet3 = body.newObject("PartDesign::Fillet", "Fillet002")
fillet3.Base = (fillet2, edges_at(fillet2, [
    (23.162, -10.007, 3.81),
    (19.431, -16.256, 3.81),
    (-19.431, -16.256, 3.81),
    (-25.781, -9.906, 3.81),
    (-25.781, 9.906, 3.81),
    (-19.431, 16.256, 3.81),
    (19.431, 16.256, 3.81),
    (23.162, 10.007, 3.81),
]))
fillet3.Radius = Q("0.025 in")

# Sketch on XY plane
sketch5 = body.newObject("Sketcher::SketchObject", "Sketch004")
sketch5.AttachmentSupport = (doc.getObject("XY_Plane"), [""])
sketch5.MapMode = "FlatFace"
sketch5.AttachmentOffset = App.Placement(V(0, 0, 0.125 * 25.4), App.Rotation())
sketch5.addGeometry([
    Part.Circle(V(-33.3, 12.7, 0), V(0, 0, 1), 2.2),
    Part.Circle(V(-33.7, -12, 0), V(0, 0, 1), 2.2),
    Part.Circle(V(33, 14, 0), V(0, 0, 1), 2.2),
    Part.Circle(V(33.3, -12.7, 0), V(0, 0, 1), 2.2),
], False)
sketch5.addConstraint([
    Sketcher.Constraint("Equal", 0, 1),
    Sketcher.Constraint("Equal", 1, 2),
    Sketcher.Constraint("Equal", 2, 3),
    Sketcher.Constraint("Symmetric", 0, 3, 3, 3, -1, 1),
    Sketcher.Constraint("DistanceY", 3, 3, 0, 3, Q("1 in")),
    Sketcher.Constraint("Diameter", 0, Q("0.1695 in")),
    Sketcher.Constraint("DistanceX", 0, 3, -1, 1, Q("1.3125 in")),
    Sketcher.Constraint("DistanceY", 1, 3, -1, 1, Q("11.954179 mm")),
    Sketcher.Constraint("DistanceX", -1, 1, 2, 3, Q("32.991909 mm")),
    Sketcher.Constraint("DistanceY", -1, 1, 2, 3, Q("14.039088 mm")),
    Sketcher.Constraint("DistanceX", 1, 3, -1, 1, Q("33.714364 mm")),
])
doc.recompute()
hole = body.newObject("PartDesign::Hole", "Hole")
hole.Profile = sketch5
hole.ThreadType = "None"
hole.Diameter = Q("0.1695 in")
hole.DepthType = "ThroughAll"
doc.recompute()

chamfer = body.newObject("PartDesign::Chamfer", "Chamfer")
chamfer.Base = (hole, edges_at(hole, [
    (38.1, 0, 0),
    (-38.1, 0, 0),
    (0, 19.05, 0),
    (0, -19.05, 0),
    (-36.24, -17.19, 0),
    (-36.24, 17.19, 0),
    (36.24, 17.19, 0),
    (36.24, -17.19, 0),
]))
chamfer.Size = Q("0.02 in")
doc.recompute()

chamfer2 = body.newObject("PartDesign::Chamfer", "Chamfer001")
chamfer2.Base = (chamfer, edges_at(chamfer, [
    (35.49, -12.7, 3.175),
    (35.49, -12.7, 0),
    (35.145, 14.039, 3.175),
    (35.145, 14.039, 0),
    (-31.562, -11.954, 3.175),
    (-31.562, -11.954, 0),
    (-31.185, 12.7, 3.175),
    (-31.185, 12.7, 0),
]))
chamfer2.Size = Q("0.01 in")

# Sketch on XY plane
sketch6 = body.newObject("Sketcher::SketchObject", "Sketch005")
sketch6.AttachmentSupport = (doc.getObject("XY_Plane"), [""])
sketch6.MapMode = "FlatFace"
sketch6.AttachmentOffset = App.Placement(V(0, 0, 0.125 * 25.4), App.Rotation())
sketch6.addGeometry([
    Part.LineSegment(V(24.4, -4.8, 0), V(24.4, 4.8, 0)),
    Part.ArcOfCircle(Part.Circle(V(23.8, 4.8, 0), V(0, 0, 1), 0.6), math.radians(180), math.radians(360)),
    Part.LineSegment(V(23.2, 4.8, 0), V(23.2, -4.8, 0)),
    Part.ArcOfCircle(Part.Circle(V(23.8, -4.8, 0), V(0, 0, 1), 0.6), math.radians(0), math.radians(180)),
], False)
sketch6.addConstraint([
    Sketcher.Constraint("Tangent", 0, 2, 1, 2),
    Sketcher.Constraint("Tangent", 1, 1, 2, 1),
    Sketcher.Constraint("Tangent", 2, 2, 3, 2),
    Sketcher.Constraint("Tangent", 3, 1, 0, 1),
    Sketcher.Constraint("Vertical", 0),
    Sketcher.Constraint("Vertical", 2),
    Sketcher.Constraint("Radius", 1, Q("0.025 in")),
    Sketcher.Constraint("DistanceY", 0, 1, 0, 2, Q("0.375 in")),
    Sketcher.Constraint("DistanceY", -1, 1, 1, 3, Q("0.1875 in")),
    Sketcher.Constraint("DistanceX", -1, 1, 1, 3, Q("23.797158 mm")),
])
pocket2 = body.newObject("PartDesign::Pocket", "Pocket001")
pocket2.Profile = sketch6
pocket2.Type = "ThroughAll"
pocket2.Reversed = True

# Sketch on XY plane
sketch7 = body.newObject("Sketcher::SketchObject", "Sketch006")
sketch7.AttachmentSupport = (doc.getObject("XY_Plane"), [""])
sketch7.MapMode = "FlatFace"
sketch7.AttachmentOffset = App.Placement(V(0, 0, 0.082 * 25.4), App.Rotation())
sketch7.addGeometry([
    Part.Circle(V(24.1, 14.6, 0), V(0, 0, 1), 1.6),
    Part.Circle(V(-24.1, 14.6, 0), V(0, 0, 1), 1.6),
    Part.Circle(V(-24.1, -14.6, 0), V(0, 0, 1), 1.6),
    Part.Circle(V(24.1, -14.6, 0), V(0, 0, 1), 1.6),
], False)
sketch7.addConstraint([
    Sketcher.Constraint("Equal", 0, 1),
    Sketcher.Constraint("Equal", 1, 2),
    Sketcher.Constraint("Equal", 2, 3),
    Sketcher.Constraint("Symmetric", 0, 3, 2, 3, -1, 1),
    Sketcher.Constraint("Symmetric", 1, 3, 3, 3, -1, 1),
    Sketcher.Constraint("Symmetric", 0, 3, 1, 3, -2),
    Sketcher.Constraint("Diameter", 0, Q("0.125 in")),
    Sketcher.Constraint("DistanceX", 1, 3, 0, 3, Q("1.9 in")),
    Sketcher.Constraint("DistanceY", 2, 3, 1, 3, Q("1.15 in")),
])
pad3 = body.newObject("PartDesign::Pad", "Pad002")
pad3.Profile = sketch7
pad3.Length = 0.5

doc.recompute()
